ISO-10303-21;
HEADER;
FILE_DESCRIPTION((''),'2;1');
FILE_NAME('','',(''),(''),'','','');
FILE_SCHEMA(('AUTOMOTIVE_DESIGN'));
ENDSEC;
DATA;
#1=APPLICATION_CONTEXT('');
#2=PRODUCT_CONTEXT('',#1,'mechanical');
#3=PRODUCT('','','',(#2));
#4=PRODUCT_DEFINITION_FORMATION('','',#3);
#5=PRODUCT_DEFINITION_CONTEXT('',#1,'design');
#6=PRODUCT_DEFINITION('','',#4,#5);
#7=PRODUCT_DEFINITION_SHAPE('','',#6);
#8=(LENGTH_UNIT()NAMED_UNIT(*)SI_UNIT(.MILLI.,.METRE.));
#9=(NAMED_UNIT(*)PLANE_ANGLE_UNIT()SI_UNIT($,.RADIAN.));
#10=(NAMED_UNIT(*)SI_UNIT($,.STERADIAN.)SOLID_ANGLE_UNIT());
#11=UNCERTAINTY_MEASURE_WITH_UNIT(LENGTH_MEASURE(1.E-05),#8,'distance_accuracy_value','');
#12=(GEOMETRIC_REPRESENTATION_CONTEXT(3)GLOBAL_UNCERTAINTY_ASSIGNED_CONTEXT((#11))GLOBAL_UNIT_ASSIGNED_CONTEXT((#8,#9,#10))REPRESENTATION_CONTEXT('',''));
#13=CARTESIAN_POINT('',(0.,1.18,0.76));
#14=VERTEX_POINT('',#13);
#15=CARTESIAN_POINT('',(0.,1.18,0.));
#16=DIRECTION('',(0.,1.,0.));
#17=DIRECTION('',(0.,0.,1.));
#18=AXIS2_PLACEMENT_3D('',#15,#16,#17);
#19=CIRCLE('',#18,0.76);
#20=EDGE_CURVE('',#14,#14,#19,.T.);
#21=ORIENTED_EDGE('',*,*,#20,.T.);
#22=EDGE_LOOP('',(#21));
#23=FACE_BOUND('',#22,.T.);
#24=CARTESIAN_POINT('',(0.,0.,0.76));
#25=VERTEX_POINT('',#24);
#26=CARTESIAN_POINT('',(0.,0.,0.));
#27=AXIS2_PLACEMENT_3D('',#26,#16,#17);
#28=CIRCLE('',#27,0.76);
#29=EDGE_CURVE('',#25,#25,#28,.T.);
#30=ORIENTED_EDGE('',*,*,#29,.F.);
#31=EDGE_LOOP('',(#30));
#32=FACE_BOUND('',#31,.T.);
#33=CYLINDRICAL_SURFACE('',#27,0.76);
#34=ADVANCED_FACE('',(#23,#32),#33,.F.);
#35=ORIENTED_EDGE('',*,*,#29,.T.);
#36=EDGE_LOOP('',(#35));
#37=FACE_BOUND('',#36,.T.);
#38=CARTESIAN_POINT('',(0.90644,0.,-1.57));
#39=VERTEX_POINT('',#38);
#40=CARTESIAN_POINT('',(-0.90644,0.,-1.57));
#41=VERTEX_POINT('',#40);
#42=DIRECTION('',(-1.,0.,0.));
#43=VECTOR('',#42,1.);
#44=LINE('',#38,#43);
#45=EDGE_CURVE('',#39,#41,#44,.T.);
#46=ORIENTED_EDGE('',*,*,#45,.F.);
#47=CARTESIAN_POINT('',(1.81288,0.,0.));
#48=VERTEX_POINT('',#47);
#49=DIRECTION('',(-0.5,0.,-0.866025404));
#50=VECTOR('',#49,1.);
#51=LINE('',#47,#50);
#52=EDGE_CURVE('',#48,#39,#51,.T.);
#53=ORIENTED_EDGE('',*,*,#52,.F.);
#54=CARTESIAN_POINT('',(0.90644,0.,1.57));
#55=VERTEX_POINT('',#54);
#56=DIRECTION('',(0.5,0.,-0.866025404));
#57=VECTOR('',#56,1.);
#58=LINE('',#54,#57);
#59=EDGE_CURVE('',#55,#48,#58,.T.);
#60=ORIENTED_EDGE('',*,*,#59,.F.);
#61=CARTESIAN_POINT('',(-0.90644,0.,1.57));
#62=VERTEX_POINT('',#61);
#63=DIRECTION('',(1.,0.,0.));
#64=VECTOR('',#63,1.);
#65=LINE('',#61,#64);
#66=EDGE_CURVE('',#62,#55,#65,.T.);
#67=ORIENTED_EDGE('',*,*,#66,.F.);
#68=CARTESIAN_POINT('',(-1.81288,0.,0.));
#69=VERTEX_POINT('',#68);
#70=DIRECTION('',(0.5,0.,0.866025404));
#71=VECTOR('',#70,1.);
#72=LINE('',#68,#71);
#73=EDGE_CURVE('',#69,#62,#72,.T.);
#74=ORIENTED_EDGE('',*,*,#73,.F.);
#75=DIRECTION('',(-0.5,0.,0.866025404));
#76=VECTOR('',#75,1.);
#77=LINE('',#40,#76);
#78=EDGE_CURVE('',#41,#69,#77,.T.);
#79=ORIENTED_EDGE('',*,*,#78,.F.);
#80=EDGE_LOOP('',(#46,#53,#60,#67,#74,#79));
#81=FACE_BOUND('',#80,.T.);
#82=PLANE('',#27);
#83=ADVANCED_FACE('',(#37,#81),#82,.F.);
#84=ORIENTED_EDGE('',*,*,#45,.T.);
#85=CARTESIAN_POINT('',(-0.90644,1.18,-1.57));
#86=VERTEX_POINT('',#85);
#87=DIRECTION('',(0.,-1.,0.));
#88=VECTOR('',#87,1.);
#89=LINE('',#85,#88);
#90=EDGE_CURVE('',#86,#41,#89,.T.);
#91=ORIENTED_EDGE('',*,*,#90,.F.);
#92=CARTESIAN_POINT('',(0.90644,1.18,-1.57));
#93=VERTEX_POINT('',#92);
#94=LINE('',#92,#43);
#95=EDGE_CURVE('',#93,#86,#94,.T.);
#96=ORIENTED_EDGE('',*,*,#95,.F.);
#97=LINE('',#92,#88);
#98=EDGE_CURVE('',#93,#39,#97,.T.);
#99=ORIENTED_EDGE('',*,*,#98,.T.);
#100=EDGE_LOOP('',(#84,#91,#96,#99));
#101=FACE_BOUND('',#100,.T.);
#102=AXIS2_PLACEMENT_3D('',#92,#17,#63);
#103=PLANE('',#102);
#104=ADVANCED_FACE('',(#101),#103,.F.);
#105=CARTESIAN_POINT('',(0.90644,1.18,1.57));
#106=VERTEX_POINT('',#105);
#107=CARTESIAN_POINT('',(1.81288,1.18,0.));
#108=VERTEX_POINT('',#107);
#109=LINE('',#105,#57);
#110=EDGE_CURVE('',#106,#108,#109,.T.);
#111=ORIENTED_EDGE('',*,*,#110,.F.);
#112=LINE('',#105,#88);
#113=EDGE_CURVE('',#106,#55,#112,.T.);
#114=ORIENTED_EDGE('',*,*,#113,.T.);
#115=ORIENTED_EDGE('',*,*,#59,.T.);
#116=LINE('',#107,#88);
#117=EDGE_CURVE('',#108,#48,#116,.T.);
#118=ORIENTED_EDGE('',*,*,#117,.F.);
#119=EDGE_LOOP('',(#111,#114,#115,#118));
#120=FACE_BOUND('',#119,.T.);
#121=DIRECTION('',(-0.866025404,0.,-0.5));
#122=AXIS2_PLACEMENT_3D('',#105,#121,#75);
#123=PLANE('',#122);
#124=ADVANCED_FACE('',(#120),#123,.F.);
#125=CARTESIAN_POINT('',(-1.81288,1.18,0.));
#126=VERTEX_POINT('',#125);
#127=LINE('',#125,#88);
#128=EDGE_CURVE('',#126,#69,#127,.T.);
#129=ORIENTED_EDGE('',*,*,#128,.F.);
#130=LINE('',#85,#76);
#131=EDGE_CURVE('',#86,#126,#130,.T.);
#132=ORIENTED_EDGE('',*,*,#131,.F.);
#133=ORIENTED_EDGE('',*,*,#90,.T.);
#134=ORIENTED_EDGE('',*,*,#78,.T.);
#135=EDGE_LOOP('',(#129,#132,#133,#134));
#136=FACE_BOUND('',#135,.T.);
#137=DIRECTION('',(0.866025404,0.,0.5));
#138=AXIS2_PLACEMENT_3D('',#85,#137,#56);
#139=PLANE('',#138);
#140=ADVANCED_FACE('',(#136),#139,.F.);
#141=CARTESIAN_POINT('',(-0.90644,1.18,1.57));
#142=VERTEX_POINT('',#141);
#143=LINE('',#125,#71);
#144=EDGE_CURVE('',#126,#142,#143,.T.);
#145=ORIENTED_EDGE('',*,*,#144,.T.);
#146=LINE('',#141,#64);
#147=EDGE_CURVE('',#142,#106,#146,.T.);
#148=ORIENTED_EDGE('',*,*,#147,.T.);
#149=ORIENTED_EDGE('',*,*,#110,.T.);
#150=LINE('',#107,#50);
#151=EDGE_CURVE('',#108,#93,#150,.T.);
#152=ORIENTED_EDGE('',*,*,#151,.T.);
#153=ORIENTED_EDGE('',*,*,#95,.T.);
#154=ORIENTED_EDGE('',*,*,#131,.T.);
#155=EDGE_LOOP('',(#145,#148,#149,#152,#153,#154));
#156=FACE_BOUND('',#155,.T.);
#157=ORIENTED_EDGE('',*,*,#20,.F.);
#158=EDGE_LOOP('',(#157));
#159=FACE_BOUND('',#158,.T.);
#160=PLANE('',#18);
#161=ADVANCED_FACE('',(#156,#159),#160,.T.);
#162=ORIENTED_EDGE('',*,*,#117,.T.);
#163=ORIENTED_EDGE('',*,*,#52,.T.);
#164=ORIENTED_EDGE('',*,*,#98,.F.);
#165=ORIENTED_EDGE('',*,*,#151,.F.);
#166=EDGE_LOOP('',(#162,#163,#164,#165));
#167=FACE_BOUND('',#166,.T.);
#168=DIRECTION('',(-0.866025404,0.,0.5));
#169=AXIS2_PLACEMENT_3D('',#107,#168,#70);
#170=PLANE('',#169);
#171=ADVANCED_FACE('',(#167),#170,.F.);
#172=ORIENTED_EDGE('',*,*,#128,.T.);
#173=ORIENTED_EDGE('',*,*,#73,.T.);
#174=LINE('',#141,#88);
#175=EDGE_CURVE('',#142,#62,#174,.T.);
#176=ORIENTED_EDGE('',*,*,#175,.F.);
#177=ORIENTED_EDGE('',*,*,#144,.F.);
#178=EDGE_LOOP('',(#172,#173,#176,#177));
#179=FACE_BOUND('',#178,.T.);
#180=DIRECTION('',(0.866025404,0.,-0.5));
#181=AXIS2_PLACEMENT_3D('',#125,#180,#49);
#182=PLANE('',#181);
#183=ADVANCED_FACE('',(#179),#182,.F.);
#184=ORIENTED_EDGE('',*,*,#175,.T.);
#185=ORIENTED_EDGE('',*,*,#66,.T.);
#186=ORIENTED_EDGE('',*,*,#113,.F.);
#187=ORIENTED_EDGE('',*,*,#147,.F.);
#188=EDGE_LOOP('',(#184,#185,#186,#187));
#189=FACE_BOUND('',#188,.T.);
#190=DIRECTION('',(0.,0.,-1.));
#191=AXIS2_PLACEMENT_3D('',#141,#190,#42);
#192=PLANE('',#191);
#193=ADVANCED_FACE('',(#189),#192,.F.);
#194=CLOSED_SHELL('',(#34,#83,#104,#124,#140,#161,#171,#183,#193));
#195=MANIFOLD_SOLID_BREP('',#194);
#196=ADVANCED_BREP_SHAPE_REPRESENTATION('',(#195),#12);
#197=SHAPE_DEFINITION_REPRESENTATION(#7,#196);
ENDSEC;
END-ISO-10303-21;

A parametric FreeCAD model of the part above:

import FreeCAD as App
import Part
import Sketcher
Q = App.Units.Quantity

doc = App.newDocument("Part")
body = doc.addObject("PartDesign::Body", "Body")

sketch1 = body.newObject("Sketcher::SketchObject", "Sketch")
sketch1.AttachmentSupport = (doc.getObject("XZ_Plane"), [""])
sketch1.MapMode = "FlatFace"
sketch1.addGeometry(Part.LineSegment(App.Vector(1.8, 0, 0), App.Vector(0.9, -1.6, 0)), False)
sketch1.addGeometry(Part.LineSegment(App.Vector(0.9, -1.6, 0), App.Vector(-0.9, -1.6, 0)), False)
sketch1.addGeometry(Part.LineSegment(App.Vector(-0.9, -1.6, 0), App.Vector(-1.8, 0, 0)), False)
sketch1.addGeometry(Part.LineSegment(App.Vector(-1.8, 0, 0), App.Vector(-0.9, 1.6, 0)), False)
sketch1.addGeometry(Part.LineSegment(App.Vector(-0.9, 1.6, 0), App.Vector(0.9, 1.6, 0)), False)
sketch1.addGeometry(Part.LineSegment(App.Vector(0.9, 1.6, 0), App.Vector(1.8, 0, 0)), False)
sketch1.addConstraint(Sketcher.Constraint("Coincident", 0, 2, 1, 1))
sketch1.addConstraint(Sketcher.Constraint("Coincident", 1, 2, 2, 1))
sketch1.addConstraint(Sketcher.Constraint("Coincident", 2, 2, 3, 1))
sketch1.addConstraint(Sketcher.Constraint("Coincident", 3, 2, 4, 1))
sketch1.addConstraint(Sketcher.Constraint("Coincident", 4, 2, 5, 1))
sketch1.addConstraint(Sketcher.Constraint("Coincident", 5, 2, 0, 1))
sketch1.addConstraint(Sketcher.Constraint("Horizontal", 1))
sketch1.addConstraint(Sketcher.Constraint("Horizontal", 4))
sketch1.addConstraint(Sketcher.Constraint("Symmetric", 0, 2, 3, 2, -1, 1))
sketch1.addConstraint(Sketcher.Constraint("Symmetric", 2, 2, 5, 2, -1, 1))
sketch1.addConstraint(Sketcher.Constraint("PointOnObject", 2, 2, -1))
sketch1.addConstraint(Sketcher.Constraint("Parallel", 2, 5))
sketch1.addConstraint(Sketcher.Constraint("Vertical", 1, 2, 3, 2))
sketch1.addConstraint(Sketcher.Constraint("Angle", 0, Q("-120 deg")))
sketch1.addConstraint(Sketcher.Constraint("DistanceY", 0, 2, -1, 1, Q("1.57 mm")))
sketch1.addConstraint(Sketcher.Constraint("DistanceX", 1, 2, 1, 1, Q("1.81288 mm")))
pad1 = body.newObject("PartDesign::Pad", "Pad")
pad1.Profile = sketch1
pad1.Length = 1.18
pad1.Reversed = True

sketch2 = body.newObject("Sketcher::SketchObject", "Sketch001")
sketch2.AttachmentSupport = (doc.getObject("XZ_Plane"), [""])
sketch2.MapMode = "FlatFace"
sketch2.AttachmentOffset = App.Placement(App.Vector(0, 0, -1.18), App.Rotation())
sketch2.addGeometry(Part.Circle(App.Vector(0, 0, 0), App.Vector(0, 0, 1), 0.8), False)
sketch2.addConstraint(Sketcher.Constraint("Coincident", 0, 3, -1, 1))
sketch2.addConstraint(Sketcher.Constraint("Diameter", 0, Q("1.52 mm")))
pocket1 = body.newObject("PartDesign::Pocket", "Pocket")
pocket1.Profile = sketch2
pocket1.Type = "ThroughAll"
pocket1.Reversed = True

doc.recompute()
